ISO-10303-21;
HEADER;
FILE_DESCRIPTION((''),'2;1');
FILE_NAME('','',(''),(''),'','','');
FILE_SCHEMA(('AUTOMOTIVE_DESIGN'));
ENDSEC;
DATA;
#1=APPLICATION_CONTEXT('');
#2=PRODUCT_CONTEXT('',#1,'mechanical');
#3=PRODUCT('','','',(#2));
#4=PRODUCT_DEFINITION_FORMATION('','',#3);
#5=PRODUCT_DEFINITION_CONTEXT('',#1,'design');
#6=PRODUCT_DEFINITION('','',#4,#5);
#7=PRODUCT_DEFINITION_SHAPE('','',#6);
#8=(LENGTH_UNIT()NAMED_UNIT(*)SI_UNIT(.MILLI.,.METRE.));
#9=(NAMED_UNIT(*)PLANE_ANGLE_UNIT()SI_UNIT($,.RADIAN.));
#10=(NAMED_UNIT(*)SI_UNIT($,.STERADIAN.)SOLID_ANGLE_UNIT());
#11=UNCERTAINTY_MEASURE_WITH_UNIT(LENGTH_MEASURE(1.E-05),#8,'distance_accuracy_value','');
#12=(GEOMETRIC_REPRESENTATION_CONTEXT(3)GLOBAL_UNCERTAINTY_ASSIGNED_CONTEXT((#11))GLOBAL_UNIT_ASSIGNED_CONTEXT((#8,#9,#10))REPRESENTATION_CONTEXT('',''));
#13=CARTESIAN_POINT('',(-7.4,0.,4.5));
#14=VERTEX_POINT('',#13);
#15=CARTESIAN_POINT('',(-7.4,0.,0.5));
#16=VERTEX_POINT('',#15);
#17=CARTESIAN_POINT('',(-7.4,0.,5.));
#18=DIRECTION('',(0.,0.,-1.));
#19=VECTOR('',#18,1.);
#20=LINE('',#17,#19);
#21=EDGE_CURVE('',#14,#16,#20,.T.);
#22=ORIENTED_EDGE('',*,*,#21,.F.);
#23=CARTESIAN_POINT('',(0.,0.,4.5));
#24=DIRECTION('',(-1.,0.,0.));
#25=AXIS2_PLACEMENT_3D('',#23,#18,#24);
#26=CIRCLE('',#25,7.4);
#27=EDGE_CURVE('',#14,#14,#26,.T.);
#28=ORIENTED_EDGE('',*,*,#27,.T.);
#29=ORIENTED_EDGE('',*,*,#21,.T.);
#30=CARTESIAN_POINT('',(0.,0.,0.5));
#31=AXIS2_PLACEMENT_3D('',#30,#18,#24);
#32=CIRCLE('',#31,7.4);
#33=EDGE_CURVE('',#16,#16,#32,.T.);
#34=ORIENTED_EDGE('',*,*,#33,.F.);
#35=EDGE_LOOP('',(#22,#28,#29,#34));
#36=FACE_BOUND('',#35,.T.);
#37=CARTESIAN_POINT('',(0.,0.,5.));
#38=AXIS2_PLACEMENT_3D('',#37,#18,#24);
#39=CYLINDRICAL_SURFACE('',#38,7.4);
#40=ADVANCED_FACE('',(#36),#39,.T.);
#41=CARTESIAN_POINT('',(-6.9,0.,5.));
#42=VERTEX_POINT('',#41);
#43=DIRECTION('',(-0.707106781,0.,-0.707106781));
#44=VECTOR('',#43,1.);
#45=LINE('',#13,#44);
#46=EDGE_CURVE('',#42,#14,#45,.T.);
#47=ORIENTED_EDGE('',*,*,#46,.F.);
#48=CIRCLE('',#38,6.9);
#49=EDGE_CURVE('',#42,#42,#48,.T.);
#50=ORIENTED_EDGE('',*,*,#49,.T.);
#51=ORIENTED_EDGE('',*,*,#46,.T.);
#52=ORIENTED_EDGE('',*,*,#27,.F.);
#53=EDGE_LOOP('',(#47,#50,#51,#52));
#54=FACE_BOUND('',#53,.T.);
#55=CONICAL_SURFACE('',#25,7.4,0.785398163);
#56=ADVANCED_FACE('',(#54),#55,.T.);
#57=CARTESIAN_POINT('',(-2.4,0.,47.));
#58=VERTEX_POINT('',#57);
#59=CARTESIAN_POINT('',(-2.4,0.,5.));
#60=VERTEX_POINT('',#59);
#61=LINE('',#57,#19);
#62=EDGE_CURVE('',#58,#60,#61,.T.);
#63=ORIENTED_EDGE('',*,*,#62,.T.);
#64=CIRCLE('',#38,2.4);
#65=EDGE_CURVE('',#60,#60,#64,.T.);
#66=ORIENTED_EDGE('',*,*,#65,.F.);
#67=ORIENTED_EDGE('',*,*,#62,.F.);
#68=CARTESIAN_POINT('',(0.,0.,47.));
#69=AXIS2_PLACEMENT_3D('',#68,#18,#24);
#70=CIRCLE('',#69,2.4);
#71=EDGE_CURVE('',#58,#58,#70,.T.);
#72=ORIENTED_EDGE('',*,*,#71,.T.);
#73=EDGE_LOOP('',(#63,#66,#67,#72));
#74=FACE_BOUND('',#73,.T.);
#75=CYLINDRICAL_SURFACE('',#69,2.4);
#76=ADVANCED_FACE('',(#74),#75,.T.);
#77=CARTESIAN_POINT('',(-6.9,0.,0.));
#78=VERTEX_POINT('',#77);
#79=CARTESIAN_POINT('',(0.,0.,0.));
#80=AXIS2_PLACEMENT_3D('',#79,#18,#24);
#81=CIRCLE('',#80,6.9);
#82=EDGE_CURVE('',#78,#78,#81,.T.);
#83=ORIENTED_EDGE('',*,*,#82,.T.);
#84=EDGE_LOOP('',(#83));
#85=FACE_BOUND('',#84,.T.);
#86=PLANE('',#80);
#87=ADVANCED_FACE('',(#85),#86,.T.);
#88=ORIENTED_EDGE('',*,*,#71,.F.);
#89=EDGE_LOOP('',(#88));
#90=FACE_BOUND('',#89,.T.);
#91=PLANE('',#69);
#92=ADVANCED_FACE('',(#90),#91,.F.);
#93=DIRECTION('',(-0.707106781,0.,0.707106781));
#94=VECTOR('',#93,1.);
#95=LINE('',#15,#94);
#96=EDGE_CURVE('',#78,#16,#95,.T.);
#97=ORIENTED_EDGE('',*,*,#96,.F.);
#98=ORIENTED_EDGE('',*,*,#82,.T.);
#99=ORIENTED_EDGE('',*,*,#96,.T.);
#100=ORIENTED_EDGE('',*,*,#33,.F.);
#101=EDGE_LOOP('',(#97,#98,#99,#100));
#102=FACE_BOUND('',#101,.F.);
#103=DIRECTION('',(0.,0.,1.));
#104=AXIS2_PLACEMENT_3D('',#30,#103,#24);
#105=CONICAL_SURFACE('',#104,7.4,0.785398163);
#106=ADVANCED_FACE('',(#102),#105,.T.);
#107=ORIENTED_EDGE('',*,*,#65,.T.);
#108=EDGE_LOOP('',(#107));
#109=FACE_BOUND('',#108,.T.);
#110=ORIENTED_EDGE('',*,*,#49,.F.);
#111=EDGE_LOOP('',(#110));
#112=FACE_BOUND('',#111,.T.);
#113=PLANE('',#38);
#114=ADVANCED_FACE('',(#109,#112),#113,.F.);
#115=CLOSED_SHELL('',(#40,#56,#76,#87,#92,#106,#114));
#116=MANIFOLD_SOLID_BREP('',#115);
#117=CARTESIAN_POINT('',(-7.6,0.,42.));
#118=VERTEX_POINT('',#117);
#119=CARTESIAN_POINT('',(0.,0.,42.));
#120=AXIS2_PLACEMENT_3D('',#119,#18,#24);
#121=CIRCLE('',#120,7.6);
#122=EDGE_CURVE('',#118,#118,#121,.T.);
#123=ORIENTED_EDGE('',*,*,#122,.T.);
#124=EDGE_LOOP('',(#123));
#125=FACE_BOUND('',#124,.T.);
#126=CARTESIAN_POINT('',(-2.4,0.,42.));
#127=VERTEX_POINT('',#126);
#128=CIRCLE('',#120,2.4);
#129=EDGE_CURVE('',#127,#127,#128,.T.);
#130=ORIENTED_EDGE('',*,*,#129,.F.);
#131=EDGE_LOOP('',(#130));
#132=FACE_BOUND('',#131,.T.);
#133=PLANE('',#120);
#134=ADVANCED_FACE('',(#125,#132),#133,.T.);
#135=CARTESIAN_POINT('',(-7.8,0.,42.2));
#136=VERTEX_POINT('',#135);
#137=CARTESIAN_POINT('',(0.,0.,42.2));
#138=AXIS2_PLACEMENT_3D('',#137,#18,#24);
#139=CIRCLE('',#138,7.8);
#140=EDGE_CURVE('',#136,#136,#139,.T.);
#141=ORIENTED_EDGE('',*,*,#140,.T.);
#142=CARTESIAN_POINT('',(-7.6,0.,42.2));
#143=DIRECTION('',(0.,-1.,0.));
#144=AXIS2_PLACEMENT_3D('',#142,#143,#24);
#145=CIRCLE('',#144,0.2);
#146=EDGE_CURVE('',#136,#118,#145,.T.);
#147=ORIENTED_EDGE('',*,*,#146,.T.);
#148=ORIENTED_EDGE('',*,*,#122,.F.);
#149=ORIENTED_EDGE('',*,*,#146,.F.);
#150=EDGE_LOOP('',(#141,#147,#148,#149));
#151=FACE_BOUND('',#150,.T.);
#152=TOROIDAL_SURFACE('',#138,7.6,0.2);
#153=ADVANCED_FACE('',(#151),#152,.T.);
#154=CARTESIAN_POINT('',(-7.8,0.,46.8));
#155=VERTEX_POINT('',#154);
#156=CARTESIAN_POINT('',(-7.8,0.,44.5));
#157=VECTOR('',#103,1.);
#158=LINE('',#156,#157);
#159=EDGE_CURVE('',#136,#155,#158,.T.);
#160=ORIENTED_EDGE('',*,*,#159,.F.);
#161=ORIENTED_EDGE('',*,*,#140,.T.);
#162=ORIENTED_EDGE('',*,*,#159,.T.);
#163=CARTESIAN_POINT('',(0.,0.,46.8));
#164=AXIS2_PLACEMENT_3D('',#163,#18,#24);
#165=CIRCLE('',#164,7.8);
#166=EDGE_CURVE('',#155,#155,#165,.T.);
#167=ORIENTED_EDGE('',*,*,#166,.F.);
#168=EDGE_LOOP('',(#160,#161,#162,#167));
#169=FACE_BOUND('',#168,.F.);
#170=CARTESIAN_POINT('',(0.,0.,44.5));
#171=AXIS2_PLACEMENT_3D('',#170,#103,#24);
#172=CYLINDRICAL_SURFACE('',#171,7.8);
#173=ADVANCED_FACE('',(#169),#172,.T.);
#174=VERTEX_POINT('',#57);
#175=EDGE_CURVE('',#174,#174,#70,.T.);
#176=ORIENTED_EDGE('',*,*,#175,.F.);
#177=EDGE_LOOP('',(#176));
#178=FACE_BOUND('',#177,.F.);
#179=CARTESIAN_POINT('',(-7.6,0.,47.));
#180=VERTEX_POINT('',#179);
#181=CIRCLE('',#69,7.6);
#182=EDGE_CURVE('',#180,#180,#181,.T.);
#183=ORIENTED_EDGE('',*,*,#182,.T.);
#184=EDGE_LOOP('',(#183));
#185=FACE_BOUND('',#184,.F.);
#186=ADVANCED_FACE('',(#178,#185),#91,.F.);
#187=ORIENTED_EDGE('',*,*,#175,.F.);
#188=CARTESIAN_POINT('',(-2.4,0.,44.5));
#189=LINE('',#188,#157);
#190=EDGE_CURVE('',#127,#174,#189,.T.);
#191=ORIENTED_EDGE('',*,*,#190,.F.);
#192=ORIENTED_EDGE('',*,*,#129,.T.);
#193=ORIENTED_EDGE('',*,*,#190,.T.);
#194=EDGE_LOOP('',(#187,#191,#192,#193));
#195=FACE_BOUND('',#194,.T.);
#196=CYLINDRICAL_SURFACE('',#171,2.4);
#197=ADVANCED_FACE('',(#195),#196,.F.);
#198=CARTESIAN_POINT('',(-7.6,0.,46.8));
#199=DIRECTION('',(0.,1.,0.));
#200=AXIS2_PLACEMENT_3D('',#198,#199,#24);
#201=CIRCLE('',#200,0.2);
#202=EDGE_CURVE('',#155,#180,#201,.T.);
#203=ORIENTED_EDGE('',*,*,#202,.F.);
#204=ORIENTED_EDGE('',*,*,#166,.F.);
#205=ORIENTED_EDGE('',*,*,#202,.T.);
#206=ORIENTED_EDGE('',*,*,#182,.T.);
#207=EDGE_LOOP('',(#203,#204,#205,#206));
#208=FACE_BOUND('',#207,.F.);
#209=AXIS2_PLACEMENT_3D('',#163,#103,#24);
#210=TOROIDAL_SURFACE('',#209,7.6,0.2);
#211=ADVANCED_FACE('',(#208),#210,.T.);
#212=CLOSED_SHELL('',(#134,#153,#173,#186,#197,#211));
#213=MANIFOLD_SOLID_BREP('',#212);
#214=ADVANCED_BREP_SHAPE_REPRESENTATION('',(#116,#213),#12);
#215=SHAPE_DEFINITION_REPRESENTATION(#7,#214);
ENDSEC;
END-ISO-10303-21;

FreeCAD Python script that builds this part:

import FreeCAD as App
import Part
import Sketcher

V = App.Vector
Q = App.Units.Quantity


def edges_at(feature, points):
    """Names of the edges that pass closest to the given points."""
    edges = feature.Shape.Edges
    near = lambda p: min(range(len(edges)), key=lambda i: edges[i].distToShape(Part.Vertex(*p))[0])
    return sorted({f"Edge{near(p) + 1}" for p in points})

doc = App.newDocument("Part")
body = doc.addObject("PartDesign::Body", "Body")

# Sketch on XZ plane
sketch1 = body.newObject("Sketcher::SketchObject", "Sketch")
sketch1.AttachmentSupport = (doc.getObject("XZ_Plane"), [""])
sketch1.MapMode = "FlatFace"
sketch1.addGeometry([
    Part.LineSegment(V(-7.4, 0, 0), V(0, 0, 0)),  # 0
    Part.LineSegment(V(0, 0, 0), V(0, 47, 0)),  # 1
    Part.LineSegment(V(0, 47, 0), V(-2.4, 47, 0)),  # 2
    Part.LineSegment(V(-2.4, 47, 0), V(-2.4, 5, 0)),  # 3
    Part.LineSegment(V(-2.4, 5, 0), V(-7.4, 5, 0)),  # 4
    Part.LineSegment(V(-7.4, 5, 0), V(-7.4, 0, 0)),  # 5
], False)
sketch1.addConstraint([
    Sketcher.Constraint("Coincident", 0, 2, 1, 1),
    Sketcher.Constraint("Coincident", 1, 2, 2, 1),
    Sketcher.Constraint("Coincident", 2, 2, 3, 1),
    Sketcher.Constraint("Coincident", 3, 2, 4, 1),
    Sketcher.Constraint("Coincident", 4, 2, 5, 1),
    Sketcher.Constraint("Coincident", 5, 2, 0, 1),
    Sketcher.Constraint("Horizontal", 0),
    Sketcher.Constraint("Vertical", 1),
    Sketcher.Constraint("Horizontal", 2),
    Sketcher.Constraint("Vertical", 3),
    Sketcher.Constraint("Horizontal", 4),
    Sketcher.Constraint("Vertical", 5),
    Sketcher.Constraint("Coincident", 0, 2, -1, 1),
    Sketcher.Constraint("Equal", 4, 5),
    Sketcher.Constraint("DistanceX", 4, 2, 4, 1, Q("5 mm")),
    Sketcher.Constraint("DistanceY", 1, 1, 1, 2, Q("47 mm")),
    Sketcher.Constraint("DistanceX", 0, 1, 0, 2, Q("7.4 mm")),
])
revolution = body.newObject("PartDesign::Revolution", "Revolution")
revolution.Profile = sketch1
revolution.ReferenceAxis = (sketch1, ["V_Axis"])
revolution.Angle = 360
doc.recompute()

chamfer = body.newObject("PartDesign::Chamfer", "Chamfer")
chamfer.Base = (revolution, edges_at(revolution, [(7.4, 0, 5), (7.4, 0, 0)]))
chamfer.Size = 0.5
body2 = doc.addObject("PartDesign::Body", "Body001")

# Sketch on XZ plane
sketch2 = body2.newObject("Sketcher::SketchObject", "Sketch001")
sketch2.AttachmentSupport = (doc.getObject("XZ_Plane001"), [""])
sketch2.MapMode = "FlatFace"
sketch2.addGeometry([
    Part.LineSegment(V(-8, 47, 0), V(-8, 42, 0)),
    Part.LineSegment(V(-8, 42, 0), V(-2, 42, 0)),
    Part.LineSegment(V(-2, 42, 0), V(-2, 47, 0)),
    Part.LineSegment(V(-2, 47, 0), V(-8, 47, 0)),
], False)
sketch2.addConstraint([
    Sketcher.Constraint("Coincident", 0, 2, 1, 1),
    Sketcher.Constraint("Coincident", 1, 2, 2, 1),
    Sketcher.Constraint("Coincident", 2, 2, 3, 1),
    Sketcher.Constraint("Coincident", 3, 2, 0, 1),
    Sketcher.Constraint("Vertical", 0),
    Sketcher.Constraint("Horizontal", 1),
    Sketcher.Constraint("Vertical", 2),
    Sketcher.Constraint("Horizontal", 3),
    Sketcher.Constraint("DistanceY", 0, 2, 0, 1, Q("5 mm")),
    Sketcher.Constraint("DistanceX", 1, 1, 1, 2, Q("5.4 mm")),
    Sketcher.Constraint("DistanceY", -1, 1, 0, 2, Q("42 mm")),
    Sketcher.Constraint("DistanceX", 0, 2, -1, 1, Q("7.8 mm")),
])
revolution2 = body2.newObject("PartDesign::Revolution", "Revolution001")
revolution2.Profile = sketch2
revolution2.ReferenceAxis = (sketch2, ["V_Axis"])
revolution2.Angle = 360
doc.recompute()

fillet = body2.newObject("PartDesign::Fillet", "Fillet")
fillet.Base = (revolution2, edges_at(revolution2, [(7.8, 0, 47), (7.8, 0, 42)]))
fillet.Radius = 0.2

doc.recompute()
